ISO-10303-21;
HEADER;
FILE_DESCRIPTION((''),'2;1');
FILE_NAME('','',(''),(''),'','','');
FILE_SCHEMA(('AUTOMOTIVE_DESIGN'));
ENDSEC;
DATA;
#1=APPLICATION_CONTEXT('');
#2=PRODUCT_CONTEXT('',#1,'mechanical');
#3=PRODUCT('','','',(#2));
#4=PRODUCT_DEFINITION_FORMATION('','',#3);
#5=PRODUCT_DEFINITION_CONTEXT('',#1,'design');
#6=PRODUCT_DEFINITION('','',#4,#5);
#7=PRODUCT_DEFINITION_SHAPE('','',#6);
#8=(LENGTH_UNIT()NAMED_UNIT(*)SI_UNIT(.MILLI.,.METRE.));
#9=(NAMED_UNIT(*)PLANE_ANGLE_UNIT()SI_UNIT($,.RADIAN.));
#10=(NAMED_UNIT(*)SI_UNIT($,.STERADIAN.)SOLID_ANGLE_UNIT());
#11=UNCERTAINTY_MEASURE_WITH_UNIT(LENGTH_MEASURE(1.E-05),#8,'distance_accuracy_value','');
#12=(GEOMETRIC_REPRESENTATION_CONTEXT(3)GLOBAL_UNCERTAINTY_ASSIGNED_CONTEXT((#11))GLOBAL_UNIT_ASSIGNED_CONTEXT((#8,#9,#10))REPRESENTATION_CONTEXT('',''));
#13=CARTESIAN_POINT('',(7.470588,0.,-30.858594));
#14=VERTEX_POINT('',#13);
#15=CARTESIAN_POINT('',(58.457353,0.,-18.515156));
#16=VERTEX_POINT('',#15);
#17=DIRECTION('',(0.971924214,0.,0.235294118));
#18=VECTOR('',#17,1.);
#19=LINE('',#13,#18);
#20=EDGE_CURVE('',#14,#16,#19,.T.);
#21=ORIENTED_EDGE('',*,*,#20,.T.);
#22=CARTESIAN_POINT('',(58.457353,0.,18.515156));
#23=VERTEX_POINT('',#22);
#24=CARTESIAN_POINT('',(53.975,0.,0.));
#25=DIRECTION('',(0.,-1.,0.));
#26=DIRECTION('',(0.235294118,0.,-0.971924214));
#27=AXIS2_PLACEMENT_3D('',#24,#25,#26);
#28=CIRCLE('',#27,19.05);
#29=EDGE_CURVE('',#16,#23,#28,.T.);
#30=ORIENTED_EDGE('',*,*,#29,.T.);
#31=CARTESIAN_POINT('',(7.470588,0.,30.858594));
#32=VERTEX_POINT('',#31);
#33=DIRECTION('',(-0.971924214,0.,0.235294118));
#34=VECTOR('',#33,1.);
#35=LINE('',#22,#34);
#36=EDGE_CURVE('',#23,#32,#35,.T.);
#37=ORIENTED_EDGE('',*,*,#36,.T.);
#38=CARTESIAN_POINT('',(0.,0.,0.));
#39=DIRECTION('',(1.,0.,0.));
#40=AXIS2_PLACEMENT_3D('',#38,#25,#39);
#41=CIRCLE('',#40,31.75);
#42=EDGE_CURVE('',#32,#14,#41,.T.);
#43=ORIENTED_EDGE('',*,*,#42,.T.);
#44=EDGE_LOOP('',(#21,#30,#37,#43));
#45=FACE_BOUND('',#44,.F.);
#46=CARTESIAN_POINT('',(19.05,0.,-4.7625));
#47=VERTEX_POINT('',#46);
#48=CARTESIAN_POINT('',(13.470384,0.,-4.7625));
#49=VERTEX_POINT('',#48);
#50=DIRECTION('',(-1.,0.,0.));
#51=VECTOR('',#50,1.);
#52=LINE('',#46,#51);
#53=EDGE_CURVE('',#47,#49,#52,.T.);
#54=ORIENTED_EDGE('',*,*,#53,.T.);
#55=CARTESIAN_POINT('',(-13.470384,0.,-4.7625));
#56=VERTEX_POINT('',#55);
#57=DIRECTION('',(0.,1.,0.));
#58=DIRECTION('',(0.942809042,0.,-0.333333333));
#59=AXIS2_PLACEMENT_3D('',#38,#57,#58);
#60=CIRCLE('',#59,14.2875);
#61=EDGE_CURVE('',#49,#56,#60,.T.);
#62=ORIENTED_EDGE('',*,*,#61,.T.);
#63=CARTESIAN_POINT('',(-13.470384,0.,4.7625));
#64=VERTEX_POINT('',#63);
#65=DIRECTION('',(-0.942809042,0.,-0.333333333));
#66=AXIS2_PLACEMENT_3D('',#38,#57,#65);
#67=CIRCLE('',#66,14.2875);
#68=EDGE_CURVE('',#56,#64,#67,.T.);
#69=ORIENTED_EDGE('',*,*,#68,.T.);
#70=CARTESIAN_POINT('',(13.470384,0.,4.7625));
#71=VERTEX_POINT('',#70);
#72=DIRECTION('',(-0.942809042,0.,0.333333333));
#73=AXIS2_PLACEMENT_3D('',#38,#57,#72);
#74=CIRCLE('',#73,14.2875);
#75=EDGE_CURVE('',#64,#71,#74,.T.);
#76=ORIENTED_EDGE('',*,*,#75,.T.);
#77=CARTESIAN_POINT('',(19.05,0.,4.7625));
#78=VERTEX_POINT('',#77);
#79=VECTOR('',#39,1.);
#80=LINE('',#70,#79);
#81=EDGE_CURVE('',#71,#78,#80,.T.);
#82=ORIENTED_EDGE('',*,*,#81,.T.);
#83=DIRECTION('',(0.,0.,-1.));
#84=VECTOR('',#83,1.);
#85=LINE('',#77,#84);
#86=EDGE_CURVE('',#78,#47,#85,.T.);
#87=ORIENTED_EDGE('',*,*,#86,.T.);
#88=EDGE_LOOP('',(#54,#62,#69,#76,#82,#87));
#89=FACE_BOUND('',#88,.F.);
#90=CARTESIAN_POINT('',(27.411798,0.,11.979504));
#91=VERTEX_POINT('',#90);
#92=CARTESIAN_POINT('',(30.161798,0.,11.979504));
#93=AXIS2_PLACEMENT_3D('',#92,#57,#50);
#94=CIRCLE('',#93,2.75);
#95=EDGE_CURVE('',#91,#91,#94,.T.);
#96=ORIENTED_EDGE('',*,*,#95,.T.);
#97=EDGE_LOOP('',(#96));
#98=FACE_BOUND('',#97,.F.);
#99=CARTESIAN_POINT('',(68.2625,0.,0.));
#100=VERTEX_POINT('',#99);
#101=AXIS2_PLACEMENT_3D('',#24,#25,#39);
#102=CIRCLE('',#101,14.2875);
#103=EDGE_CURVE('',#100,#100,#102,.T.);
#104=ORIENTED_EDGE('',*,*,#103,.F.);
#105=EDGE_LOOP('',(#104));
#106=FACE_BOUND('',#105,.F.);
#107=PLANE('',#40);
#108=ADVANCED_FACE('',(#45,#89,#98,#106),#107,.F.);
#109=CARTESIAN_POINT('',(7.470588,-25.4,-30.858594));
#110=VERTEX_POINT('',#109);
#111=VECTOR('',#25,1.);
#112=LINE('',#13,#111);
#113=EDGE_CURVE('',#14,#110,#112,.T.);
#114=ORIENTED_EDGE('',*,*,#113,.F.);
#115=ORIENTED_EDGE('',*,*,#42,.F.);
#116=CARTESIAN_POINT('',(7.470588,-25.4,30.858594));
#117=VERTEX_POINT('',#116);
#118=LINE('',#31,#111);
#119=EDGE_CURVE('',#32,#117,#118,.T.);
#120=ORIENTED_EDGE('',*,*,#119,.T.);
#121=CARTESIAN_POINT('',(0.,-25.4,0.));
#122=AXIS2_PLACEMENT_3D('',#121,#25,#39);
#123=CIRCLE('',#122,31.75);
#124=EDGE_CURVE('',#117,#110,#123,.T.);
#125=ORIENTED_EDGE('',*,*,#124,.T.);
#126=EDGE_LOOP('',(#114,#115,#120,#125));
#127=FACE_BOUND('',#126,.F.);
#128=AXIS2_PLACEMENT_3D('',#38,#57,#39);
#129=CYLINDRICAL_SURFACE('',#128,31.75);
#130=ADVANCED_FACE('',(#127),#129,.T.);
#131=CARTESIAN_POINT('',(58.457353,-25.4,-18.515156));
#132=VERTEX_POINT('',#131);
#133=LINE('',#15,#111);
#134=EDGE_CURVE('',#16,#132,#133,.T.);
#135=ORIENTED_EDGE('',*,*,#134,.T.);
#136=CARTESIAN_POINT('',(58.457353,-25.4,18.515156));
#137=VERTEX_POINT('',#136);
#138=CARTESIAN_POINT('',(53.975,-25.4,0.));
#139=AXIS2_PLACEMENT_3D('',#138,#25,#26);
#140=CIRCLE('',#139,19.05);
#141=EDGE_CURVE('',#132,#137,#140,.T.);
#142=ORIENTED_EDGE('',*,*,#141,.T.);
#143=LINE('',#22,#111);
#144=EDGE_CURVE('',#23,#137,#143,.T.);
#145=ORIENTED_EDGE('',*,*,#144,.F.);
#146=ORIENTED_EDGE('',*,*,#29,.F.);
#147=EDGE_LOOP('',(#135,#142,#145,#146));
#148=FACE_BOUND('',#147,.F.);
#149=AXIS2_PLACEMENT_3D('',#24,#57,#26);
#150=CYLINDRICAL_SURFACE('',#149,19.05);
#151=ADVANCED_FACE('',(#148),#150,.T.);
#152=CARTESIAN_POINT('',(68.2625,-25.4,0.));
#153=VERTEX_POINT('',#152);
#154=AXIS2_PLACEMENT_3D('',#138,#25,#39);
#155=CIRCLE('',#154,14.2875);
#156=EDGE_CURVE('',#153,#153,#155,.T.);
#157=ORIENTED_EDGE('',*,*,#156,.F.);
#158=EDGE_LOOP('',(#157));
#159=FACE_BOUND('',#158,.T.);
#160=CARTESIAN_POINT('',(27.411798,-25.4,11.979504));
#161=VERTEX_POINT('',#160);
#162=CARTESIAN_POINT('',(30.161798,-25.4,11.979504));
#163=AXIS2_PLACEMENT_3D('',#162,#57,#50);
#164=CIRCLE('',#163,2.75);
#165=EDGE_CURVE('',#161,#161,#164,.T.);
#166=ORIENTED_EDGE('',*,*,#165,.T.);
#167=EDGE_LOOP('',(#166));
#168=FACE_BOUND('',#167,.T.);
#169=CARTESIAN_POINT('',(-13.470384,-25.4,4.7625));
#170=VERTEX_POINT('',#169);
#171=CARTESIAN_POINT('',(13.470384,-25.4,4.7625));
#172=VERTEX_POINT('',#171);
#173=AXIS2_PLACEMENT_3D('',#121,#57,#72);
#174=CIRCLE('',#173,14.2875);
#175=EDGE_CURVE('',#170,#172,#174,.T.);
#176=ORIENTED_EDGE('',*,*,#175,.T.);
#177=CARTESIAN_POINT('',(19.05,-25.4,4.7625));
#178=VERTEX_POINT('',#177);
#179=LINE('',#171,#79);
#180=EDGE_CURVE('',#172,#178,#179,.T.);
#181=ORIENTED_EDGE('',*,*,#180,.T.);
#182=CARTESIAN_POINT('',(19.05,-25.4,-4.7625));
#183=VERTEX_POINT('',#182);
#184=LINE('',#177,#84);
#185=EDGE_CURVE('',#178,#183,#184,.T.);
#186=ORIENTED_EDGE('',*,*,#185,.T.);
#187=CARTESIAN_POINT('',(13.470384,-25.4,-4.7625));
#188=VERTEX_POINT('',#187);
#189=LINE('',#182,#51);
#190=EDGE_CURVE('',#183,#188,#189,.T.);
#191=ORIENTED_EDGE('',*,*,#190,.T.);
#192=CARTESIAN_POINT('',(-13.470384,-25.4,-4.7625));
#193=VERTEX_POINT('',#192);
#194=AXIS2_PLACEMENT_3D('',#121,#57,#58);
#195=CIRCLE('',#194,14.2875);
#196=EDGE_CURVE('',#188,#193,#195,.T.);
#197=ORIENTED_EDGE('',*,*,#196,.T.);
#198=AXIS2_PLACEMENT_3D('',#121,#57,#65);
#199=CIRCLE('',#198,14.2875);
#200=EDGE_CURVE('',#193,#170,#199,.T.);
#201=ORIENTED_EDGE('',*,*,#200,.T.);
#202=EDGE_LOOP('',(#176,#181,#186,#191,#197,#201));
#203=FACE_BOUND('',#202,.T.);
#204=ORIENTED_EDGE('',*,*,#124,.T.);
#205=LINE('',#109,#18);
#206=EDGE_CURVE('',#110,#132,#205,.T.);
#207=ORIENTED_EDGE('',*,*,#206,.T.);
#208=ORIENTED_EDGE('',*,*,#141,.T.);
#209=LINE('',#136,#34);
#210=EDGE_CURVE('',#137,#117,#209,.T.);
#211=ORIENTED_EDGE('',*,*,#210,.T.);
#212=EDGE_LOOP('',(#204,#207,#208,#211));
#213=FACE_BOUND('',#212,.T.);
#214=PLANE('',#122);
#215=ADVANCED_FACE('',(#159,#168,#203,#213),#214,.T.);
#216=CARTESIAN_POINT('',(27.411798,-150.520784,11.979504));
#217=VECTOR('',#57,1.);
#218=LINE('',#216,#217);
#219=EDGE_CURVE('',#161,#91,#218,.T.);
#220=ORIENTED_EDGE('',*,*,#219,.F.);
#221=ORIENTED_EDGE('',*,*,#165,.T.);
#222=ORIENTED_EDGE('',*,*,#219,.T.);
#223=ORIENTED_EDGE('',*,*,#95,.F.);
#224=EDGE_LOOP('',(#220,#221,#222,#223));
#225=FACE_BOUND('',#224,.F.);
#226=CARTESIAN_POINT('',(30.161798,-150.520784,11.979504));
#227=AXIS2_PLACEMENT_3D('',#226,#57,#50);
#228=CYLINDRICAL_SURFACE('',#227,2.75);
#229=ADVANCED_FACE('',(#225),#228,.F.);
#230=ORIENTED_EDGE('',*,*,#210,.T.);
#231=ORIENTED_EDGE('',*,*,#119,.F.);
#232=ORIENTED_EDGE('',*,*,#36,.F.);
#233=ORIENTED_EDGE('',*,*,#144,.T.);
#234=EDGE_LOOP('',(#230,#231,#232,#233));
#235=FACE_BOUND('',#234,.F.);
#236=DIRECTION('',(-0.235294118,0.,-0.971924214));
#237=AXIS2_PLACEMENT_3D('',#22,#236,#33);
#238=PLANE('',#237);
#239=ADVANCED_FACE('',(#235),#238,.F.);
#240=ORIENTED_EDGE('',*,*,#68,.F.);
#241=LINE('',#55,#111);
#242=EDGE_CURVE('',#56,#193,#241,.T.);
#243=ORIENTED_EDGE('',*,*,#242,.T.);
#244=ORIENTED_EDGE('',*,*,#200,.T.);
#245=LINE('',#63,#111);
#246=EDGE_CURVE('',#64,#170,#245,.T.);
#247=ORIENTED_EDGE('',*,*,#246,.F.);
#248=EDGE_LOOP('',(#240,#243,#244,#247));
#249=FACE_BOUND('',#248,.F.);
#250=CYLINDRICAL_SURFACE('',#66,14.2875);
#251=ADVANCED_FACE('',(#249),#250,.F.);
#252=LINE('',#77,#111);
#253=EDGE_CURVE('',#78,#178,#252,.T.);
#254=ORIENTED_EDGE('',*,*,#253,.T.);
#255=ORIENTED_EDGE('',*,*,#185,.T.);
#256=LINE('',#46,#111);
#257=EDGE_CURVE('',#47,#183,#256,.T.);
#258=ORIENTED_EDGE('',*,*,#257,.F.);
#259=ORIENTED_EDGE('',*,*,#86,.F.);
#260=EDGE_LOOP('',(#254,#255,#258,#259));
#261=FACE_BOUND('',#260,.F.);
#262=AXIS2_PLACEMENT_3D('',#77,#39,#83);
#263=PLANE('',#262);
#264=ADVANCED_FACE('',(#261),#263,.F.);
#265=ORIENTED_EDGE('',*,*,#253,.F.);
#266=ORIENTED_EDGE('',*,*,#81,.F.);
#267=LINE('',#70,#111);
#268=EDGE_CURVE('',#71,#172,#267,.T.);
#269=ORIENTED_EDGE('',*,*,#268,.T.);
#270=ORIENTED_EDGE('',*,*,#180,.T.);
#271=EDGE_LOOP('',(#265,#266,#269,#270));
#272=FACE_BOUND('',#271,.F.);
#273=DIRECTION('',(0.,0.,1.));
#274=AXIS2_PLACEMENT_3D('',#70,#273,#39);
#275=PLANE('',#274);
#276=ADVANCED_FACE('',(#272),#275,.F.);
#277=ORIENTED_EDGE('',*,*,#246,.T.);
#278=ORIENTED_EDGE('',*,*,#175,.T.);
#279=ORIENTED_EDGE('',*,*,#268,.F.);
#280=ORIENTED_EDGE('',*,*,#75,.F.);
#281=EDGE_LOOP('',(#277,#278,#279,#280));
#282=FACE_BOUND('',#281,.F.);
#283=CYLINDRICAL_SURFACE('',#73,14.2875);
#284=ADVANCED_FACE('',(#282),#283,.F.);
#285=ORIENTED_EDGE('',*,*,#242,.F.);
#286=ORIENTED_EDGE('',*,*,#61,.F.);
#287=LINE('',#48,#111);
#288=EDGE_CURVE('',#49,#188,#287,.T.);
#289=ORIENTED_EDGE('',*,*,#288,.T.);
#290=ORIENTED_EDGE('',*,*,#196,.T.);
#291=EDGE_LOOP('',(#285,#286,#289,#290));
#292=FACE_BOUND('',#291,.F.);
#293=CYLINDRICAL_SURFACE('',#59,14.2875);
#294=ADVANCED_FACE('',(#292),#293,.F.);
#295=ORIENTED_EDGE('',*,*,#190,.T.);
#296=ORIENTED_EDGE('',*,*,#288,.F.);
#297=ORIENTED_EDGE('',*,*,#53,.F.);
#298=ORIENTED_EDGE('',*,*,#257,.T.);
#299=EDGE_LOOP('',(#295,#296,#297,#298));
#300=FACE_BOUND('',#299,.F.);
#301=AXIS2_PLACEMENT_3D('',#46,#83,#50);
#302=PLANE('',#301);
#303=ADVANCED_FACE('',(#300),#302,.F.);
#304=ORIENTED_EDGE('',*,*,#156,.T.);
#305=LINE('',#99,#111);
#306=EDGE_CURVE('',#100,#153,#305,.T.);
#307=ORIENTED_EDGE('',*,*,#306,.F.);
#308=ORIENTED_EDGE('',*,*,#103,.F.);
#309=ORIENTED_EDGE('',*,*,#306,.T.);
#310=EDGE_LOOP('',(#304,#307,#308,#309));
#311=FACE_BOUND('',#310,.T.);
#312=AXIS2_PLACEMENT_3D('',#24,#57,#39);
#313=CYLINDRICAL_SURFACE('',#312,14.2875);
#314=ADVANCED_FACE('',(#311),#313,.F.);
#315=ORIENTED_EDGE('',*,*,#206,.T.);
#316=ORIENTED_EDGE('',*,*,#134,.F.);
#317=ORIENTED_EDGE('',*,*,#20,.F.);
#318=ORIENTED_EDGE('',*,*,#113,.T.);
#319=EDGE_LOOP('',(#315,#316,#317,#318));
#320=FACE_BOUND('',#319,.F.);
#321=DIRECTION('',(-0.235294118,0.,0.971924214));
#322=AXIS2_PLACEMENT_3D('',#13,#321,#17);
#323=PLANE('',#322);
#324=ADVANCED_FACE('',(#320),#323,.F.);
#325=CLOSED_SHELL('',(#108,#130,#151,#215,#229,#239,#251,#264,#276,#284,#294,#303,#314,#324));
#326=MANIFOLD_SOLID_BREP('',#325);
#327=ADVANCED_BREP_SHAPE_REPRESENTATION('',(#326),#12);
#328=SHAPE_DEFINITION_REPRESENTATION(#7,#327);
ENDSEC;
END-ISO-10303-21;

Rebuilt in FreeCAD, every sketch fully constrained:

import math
import FreeCAD as App
import Part
import Sketcher
Q = App.Units.Quantity

doc = App.newDocument("Part")
params = doc.addObject("Spreadsheet::Sheet", "Params")
for row, (alias, value) in enumerate([
    ("sketch1_radius", "1.25 in"),
    ("sketch1_radius2", "0.75 in"),
    ("sketch1_diameter", "1.125 in"),
    ("sketch1_height", "0.375 in"),
    ("pad1_length", "1 in"),
    ("hole_diameter", "5.5 mm"),
], start=1):
    params.set(f"A{row}", alias)
    params.set(f"B{row}", "=" + value)
    params.setAlias(f"B{row}", alias)

body = doc.addObject("PartDesign::Body", "Body")

sketch1 = doc.addObject("Sketcher::SketchObject", "Sketch")
body.addObject(sketch1)
sketch1.AttachmentSupport = (doc.XZ_Plane, [""])
sketch1.MapMode = "FlatFace"
sketch1.addGeometry([
    Part.ArcOfCircle(Part.Circle(App.Vector(0, 0, 0), App.Vector(0, 0, 1), 32), math.radians(76), math.radians(284)),
    Part.LineSegment(App.Vector(7, -31, 0), App.Vector(58, -19, 0)),
    Part.ArcOfCircle(Part.Circle(App.Vector(54, 0, 0), App.Vector(0, 0, 1), 19), math.radians(-76), math.radians(76)),
    Part.LineSegment(App.Vector(58, 19, 0), App.Vector(7, 31, 0)),
    Part.Circle(App.Vector(54, 0, 0), App.Vector(0, 0, 1), 14),
    Part.ArcOfCircle(Part.Circle(App.Vector(0, 0, 0), App.Vector(0, 0, 1), 14), math.radians(-161), math.radians(-19)),
    Part.ArcOfCircle(Part.Circle(App.Vector(0, 0, 0), App.Vector(0, 0, 1), 14), math.radians(161), math.radians(199)),
    Part.ArcOfCircle(Part.Circle(App.Vector(0, 0, 0), App.Vector(0, 0, 1), 14), math.radians(19), math.radians(161)),
    Part.LineSegment(App.Vector(13, 5, 0), App.Vector(19, 5, 0)),
    Part.LineSegment(App.Vector(19, 5, 0), App.Vector(19, -5, 0)),
    Part.LineSegment(App.Vector(19, -5, 0), App.Vector(13, -5, 0)),
], False)
sketch1.addConstraint([
    Sketcher.Constraint("Tangent", 0, 2, 1, 1),
    Sketcher.Constraint("Tangent", 1, 2, 2, 1),
    Sketcher.Constraint("Tangent", 2, 2, 3, 1),
    Sketcher.Constraint("Tangent", 3, 2, 0, 1),
    Sketcher.Constraint("Tangent", 5, 1, 6, 2),
    Sketcher.Constraint("Tangent", 6, 1, 7, 2),
    Sketcher.Constraint("Coincident", 7, 1, 8, 1),
    Sketcher.Constraint("Coincident", 8, 2, 9, 1),
    Sketcher.Constraint("Coincident", 9, 2, 10, 1),
    Sketcher.Constraint("Coincident", 10, 2, 5, 2),
    Sketcher.Constraint("Horizontal", 8),
    Sketcher.Constraint("Vertical", 9),
    Sketcher.Constraint("Horizontal", 10),
    Sketcher.Constraint("Coincident", 0, 3, -1, 1),
    Sketcher.Constraint("Coincident", 5, 3, -1, 1),
    Sketcher.Constraint("Coincident", 7, 3, -1, 1),
    Sketcher.Constraint("Coincident", 4, 3, 2, 3),
    Sketcher.Constraint("Equal", 4, 5),
    Sketcher.Constraint("PointOnObject", 2, 3, -1),
    Sketcher.Constraint("Horizontal", 6, 1, 7, 1),
    Sketcher.Constraint("Horizontal", 5, 1, 9, 2),
    Sketcher.Constraint("Vertical", 5, 1, 6, 1),
    Sketcher.Constraint("Radius", 0, Q("1.25 in")),
    Sketcher.Constraint("Radius", 2, Q("0.75 in")),
    Sketcher.Constraint("Diameter", 4, Q("1.125 in")),
    Sketcher.Constraint("DistanceY", 9, 2, 9, 1, Q("0.375 in")),
    Sketcher.Constraint("DistanceX", -1, 1, 8, 2, Q("0.75 in")),
    Sketcher.Constraint("DistanceX", -1, 1, 2, 3, Q("2.125 in")),
])
sketch1.setExpression("Constraints[22]", "Params.sketch1_radius")
sketch1.setExpression("Constraints[23]", "Params.sketch1_radius2")
sketch1.setExpression("Constraints[24]", "Params.sketch1_diameter")
sketch1.setExpression("Constraints[25]", "Params.sketch1_height")
pad1 = doc.addObject("PartDesign::Pad", "Pad")
body.addObject(pad1)
pad1.Profile = sketch1
pad1.setExpression("Length", "Params.pad1_length")

sketch2 = doc.addObject("Sketcher::SketchObject", "Sketch001")
body.addObject(sketch2)
sketch2.AttachmentSupport = (doc.XZ_Plane, [""])
sketch2.MapMode = "FlatFace"
sketch2.AttachmentOffset = App.Placement(App.Vector(0, 0, 1 * 25.4), App.Rotation())
sketch2.addGeometry(Part.Circle(App.Vector(30.2, 12, 0), App.Vector(0, 0, 1), 2.8), False)
sketch2.addConstraint([
    Sketcher.Constraint("Diameter", 0, 5.5),
    Sketcher.Constraint("DistanceX", -1, 1, 0, 3, 30.161798),
    Sketcher.Constraint("DistanceY", -1, 1, 0, 3, 11.979504),
])
doc.recompute()
hole = doc.addObject("PartDesign::Hole", "Hole")
body.addObject(hole)
hole.Profile = sketch2
hole.ThreadType = "None"
hole.setExpression("Diameter", "Params.hole_diameter")
hole.DepthType = "ThroughAll"

doc.recompute()
